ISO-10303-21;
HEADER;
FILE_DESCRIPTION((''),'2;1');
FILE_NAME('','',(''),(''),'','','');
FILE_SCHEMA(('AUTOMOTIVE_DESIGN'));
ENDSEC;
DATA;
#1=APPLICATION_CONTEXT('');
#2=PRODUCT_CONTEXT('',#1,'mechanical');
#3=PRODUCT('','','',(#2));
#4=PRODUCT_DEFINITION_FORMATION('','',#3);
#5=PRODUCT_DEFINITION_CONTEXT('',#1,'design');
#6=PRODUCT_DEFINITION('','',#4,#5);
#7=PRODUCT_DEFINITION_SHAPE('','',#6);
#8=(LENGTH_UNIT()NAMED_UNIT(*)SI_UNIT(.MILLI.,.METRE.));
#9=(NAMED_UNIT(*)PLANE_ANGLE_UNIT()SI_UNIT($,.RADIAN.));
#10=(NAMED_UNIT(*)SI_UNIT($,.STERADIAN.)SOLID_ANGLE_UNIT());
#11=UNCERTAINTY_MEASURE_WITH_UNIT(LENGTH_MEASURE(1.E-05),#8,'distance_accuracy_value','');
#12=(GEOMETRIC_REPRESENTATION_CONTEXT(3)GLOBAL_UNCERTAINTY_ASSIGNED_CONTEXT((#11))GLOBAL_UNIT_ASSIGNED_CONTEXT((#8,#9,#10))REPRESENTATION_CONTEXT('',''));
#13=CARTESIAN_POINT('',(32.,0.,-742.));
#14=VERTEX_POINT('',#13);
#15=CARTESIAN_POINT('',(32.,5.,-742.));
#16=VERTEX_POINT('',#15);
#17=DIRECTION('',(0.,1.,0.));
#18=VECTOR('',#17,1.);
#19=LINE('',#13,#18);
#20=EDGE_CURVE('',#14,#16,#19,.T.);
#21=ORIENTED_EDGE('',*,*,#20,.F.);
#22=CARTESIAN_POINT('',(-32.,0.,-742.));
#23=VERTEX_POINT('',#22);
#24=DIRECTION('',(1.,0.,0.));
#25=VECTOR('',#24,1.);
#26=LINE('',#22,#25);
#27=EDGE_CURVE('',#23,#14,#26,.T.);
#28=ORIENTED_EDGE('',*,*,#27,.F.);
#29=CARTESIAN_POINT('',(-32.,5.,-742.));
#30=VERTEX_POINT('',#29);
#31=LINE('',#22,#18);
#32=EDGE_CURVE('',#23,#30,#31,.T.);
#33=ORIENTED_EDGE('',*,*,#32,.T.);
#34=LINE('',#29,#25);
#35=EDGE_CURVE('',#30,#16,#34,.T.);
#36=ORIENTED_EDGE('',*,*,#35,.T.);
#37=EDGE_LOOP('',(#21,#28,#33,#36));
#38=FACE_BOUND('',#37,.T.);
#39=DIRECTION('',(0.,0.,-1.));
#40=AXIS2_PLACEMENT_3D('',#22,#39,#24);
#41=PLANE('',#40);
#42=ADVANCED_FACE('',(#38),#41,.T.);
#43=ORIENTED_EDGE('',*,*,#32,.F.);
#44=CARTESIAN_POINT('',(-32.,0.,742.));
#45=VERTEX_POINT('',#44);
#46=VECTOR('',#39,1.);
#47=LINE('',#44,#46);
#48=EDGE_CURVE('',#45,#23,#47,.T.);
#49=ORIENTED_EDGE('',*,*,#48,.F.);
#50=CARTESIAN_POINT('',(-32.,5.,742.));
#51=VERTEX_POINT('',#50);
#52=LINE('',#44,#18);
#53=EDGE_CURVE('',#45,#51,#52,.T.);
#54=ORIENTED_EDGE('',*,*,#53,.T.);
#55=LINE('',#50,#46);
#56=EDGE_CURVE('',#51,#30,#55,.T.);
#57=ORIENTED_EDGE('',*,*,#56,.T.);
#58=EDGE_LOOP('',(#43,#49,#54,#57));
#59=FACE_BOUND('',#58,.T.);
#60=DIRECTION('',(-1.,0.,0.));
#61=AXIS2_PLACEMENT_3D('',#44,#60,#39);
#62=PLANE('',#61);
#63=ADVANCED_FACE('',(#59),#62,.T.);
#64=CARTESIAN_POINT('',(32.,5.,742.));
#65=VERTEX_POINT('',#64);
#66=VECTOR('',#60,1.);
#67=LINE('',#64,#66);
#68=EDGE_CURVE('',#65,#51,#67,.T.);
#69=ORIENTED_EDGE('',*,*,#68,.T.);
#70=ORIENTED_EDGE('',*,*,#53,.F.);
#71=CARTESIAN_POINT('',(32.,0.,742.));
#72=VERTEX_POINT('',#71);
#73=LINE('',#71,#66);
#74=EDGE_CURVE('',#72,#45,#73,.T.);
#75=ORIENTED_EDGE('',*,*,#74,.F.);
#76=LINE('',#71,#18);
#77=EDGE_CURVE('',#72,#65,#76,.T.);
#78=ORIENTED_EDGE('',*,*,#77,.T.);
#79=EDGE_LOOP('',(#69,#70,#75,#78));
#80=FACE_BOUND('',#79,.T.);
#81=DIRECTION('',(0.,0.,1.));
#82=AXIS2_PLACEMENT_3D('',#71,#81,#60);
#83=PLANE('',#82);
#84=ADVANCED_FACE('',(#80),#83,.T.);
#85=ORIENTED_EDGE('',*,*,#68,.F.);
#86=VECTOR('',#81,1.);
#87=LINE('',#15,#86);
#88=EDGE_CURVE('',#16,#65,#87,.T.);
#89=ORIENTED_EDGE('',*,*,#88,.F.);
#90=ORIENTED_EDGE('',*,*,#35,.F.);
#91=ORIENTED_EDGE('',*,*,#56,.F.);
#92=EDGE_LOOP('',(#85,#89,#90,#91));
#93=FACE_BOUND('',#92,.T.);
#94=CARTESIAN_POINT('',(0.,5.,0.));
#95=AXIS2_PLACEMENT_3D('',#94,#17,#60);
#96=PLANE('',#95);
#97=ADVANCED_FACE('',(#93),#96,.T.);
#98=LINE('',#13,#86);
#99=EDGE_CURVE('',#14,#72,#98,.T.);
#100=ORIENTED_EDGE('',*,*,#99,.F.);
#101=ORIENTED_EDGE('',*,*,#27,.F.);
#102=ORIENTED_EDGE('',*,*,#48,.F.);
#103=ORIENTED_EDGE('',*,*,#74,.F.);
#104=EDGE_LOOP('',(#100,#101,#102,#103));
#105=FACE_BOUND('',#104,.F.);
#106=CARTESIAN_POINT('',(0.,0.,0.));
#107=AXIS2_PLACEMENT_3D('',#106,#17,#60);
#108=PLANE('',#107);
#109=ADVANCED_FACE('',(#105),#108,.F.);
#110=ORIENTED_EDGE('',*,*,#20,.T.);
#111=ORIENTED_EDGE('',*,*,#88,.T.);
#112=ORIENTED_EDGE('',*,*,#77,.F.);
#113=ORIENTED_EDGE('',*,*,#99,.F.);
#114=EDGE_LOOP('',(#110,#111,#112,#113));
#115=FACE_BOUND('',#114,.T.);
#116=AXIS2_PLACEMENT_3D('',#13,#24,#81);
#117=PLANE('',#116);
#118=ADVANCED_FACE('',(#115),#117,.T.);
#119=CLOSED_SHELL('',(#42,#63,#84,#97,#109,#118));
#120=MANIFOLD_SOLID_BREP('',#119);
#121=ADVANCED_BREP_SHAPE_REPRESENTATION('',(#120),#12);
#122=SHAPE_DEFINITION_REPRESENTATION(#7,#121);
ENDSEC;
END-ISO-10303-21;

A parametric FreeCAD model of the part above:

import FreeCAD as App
import Part
import Sketcher


def add_polygon(sketch, points):
    """Adds a closed chain of lines whose ends are joined by coincident constraints."""
    first, n = sketch.GeometryCount, len(points)
    for a, b in zip(points, points[1:] + points[:1]):
        sketch.addGeometry(Part.LineSegment(App.Vector(*a, 0), App.Vector(*b, 0)), False)
    for i in range(n):
        sketch.addConstraint(Sketcher.Constraint("Coincident", first + i, 2, first + (i + 1) % n, 1))

doc = App.newDocument("Part")
body = doc.addObject("PartDesign::Body", "Body")

sketch1 = doc.addObject("Sketcher::SketchObject", "Sketch")
body.addObject(sketch1)
sketch1.AttachmentSupport = (doc.XZ_Plane, [""])
sketch1.MapMode = "FlatFace"
add_polygon(sketch1, [(-32, 742), (32, 742), (32, -742), (-32, -742)])
sketch1.addConstraint([
    Sketcher.Constraint("Horizontal", 0),
    Sketcher.Constraint("Vertical", 1),
    Sketcher.Constraint("Horizontal", 2),
    Sketcher.Constraint("Vertical", 3),
    Sketcher.Constraint("Symmetric", 0, 2, 2, 2, -1, 1),
    Sketcher.Constraint("DistanceX", 0, 1, 0, 2, 64.0),
    Sketcher.Constraint("DistanceY", 1, 2, 1, 1, 1484.0),
])
pad1 = doc.addObject("PartDesign::Pad", "Pad")
body.addObject(pad1)
pad1.Profile = sketch1
pad1.Length = 5
pad1.Reversed = True

doc.recompute()
